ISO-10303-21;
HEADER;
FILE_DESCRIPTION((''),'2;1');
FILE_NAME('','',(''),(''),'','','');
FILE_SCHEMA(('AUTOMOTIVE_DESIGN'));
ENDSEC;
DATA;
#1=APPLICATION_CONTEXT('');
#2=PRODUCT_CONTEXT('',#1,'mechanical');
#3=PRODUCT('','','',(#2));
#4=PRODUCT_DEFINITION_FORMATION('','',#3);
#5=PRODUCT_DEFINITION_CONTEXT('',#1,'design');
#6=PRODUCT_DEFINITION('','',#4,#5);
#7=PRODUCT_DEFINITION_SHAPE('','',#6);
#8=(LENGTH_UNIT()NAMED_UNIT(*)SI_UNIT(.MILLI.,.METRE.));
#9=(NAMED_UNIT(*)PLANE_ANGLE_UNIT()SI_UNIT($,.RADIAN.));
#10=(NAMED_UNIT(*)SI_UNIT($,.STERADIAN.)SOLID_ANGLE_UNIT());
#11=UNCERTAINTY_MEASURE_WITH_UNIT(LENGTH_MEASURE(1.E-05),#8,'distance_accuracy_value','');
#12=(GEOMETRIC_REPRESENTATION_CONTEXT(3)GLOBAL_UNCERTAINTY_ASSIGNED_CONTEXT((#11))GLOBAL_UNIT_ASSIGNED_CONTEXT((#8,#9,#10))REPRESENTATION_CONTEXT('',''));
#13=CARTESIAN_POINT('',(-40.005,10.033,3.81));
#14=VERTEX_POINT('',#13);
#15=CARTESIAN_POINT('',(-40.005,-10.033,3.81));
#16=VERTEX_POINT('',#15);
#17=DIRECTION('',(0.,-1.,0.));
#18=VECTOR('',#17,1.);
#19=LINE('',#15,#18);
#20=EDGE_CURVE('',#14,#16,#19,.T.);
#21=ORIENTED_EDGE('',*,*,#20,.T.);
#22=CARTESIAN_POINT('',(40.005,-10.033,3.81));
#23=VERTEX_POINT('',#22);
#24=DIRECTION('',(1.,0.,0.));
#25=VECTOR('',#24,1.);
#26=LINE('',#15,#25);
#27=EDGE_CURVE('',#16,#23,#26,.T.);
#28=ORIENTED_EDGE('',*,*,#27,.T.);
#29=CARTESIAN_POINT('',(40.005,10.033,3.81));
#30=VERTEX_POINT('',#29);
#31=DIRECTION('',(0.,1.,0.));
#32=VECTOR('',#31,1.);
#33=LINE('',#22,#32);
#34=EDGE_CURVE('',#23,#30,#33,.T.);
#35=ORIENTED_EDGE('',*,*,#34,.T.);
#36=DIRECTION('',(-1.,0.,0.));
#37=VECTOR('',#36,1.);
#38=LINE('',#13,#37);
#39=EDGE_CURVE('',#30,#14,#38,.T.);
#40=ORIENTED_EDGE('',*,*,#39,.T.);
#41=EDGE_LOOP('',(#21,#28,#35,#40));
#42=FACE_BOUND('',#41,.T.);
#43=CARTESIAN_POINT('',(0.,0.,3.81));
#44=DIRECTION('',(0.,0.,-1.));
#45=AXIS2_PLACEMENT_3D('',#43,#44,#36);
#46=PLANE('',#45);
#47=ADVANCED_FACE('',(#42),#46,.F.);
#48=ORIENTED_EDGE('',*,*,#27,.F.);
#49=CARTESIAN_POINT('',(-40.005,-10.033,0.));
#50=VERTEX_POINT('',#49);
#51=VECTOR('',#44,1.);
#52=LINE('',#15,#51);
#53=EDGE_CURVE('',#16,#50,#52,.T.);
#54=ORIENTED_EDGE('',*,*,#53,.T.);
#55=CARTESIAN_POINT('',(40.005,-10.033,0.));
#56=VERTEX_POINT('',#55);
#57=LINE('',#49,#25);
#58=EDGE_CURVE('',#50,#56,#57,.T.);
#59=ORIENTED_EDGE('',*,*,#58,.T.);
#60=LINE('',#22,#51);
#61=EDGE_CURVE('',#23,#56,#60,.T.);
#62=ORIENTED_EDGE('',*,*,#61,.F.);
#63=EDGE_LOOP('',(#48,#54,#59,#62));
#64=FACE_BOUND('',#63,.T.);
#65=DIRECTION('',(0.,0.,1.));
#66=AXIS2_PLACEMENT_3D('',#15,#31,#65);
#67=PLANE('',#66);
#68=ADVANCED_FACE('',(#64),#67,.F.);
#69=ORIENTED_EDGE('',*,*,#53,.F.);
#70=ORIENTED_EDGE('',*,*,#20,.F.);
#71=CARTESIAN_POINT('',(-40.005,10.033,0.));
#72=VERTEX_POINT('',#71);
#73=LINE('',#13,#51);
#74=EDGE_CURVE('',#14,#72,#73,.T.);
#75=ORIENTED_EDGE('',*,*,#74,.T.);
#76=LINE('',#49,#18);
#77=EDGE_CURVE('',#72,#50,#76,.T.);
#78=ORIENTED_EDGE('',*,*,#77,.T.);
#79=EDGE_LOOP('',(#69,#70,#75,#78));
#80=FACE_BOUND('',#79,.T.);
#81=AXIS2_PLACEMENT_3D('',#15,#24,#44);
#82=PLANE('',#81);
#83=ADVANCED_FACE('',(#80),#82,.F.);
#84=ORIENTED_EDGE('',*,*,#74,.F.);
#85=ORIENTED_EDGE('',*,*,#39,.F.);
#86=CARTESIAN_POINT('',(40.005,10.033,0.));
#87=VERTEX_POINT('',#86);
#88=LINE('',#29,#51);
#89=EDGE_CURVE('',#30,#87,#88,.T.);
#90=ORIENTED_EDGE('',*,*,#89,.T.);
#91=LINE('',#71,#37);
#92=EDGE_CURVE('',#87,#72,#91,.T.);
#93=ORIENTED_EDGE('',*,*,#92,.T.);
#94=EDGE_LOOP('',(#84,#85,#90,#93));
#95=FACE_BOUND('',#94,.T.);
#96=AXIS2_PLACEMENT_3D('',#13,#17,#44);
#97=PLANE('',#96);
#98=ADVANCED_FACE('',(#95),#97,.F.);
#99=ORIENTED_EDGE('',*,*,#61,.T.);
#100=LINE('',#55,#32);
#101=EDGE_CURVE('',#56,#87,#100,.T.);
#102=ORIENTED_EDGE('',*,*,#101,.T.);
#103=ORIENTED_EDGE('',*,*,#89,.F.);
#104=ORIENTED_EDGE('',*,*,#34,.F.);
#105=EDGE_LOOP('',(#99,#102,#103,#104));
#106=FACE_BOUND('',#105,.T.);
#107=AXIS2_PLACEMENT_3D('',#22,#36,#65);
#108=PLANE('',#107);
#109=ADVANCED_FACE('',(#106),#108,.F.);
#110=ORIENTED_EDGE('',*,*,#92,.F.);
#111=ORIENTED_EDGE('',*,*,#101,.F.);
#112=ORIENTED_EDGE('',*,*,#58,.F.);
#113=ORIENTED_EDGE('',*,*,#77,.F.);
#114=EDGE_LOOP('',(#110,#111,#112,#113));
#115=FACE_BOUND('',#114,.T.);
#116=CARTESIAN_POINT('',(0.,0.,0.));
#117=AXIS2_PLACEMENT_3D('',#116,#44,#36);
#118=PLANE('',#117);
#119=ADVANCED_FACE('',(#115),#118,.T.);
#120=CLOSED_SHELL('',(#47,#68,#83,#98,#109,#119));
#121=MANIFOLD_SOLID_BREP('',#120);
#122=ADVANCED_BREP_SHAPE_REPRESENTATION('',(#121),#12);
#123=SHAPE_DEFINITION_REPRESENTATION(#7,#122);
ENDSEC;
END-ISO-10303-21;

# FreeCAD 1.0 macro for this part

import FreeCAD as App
import Part
import Sketcher
from FreeCAD import Vector
Q = App.Units.Quantity


def add_polygon(sketch, points):
    """Adds a closed chain of lines whose ends are joined by coincident constraints."""
    first, n = sketch.GeometryCount, len(points)
    for a, b in zip(points, points[1:] + points[:1]):
        sketch.addGeometry(Part.LineSegment(App.Vector(*a, 0), App.Vector(*b, 0)), False)
    for i in range(n):
        sketch.addConstraint(Sketcher.Constraint("Coincident", first + i, 2, first + (i + 1) % n, 1))

doc = App.newDocument("Part")
body = doc.addObject("PartDesign::Body", "Body")

# Sketch on XY plane
sketch1 = body.newObject("Sketcher::SketchObject", "Sketch")
sketch1.AttachmentSupport = (doc.getObject("XY_Plane"), [""])
sketch1.MapMode = "FlatFace"
add_polygon(sketch1, [(-40, 10), (-40, -10), (40, -10), (40, 10)])  # lines 0-3
sketch1.addConstraint(Sketcher.Constraint("Vertical", 0))
sketch1.addConstraint(Sketcher.Constraint("Horizontal", 1))
sketch1.addConstraint(Sketcher.Constraint("Vertical", 2))
sketch1.addConstraint(Sketcher.Constraint("Horizontal", 3))
sketch1.addConstraint(Sketcher.Constraint("Symmetric", 0, 2, 2, 2, -1, 1))
sketch1.addConstraint(Sketcher.Constraint("DistanceX", 1, 1, 1, 2, Q("3.15 in")))
sketch1.addConstraint(Sketcher.Constraint("DistanceY", 0, 2, 0, 1, Q("0.79 in")))
pad1 = body.newObject("PartDesign::Pad", "Pad")
pad1.Profile = sketch1
pad1.Length = Q("0.15 in")

doc.recompute()
